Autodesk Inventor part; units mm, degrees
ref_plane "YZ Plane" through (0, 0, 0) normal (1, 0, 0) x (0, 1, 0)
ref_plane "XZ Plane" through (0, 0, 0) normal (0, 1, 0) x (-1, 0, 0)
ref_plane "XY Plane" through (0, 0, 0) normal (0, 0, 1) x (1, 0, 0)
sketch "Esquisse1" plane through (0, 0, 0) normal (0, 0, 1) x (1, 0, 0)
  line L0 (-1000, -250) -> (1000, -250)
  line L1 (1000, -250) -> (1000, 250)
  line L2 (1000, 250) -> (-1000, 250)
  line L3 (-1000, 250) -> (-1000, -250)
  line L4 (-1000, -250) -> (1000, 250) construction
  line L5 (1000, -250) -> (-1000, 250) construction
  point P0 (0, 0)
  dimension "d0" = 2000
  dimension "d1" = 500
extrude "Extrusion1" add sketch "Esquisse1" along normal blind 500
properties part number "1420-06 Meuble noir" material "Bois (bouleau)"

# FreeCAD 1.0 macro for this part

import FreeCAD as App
import Part
import Sketcher
Q = App.Units.Quantity

doc = App.newDocument("Part")
body = doc.addObject("PartDesign::Body", "Body")

# Sketch on XY plane
sketch1 = body.newObject("Sketcher::SketchObject", "Sketch")
sketch1.AttachmentSupport = (doc.getObject("XY_Plane"), [""])
sketch1.MapMode = "FlatFace"
sketch1.addGeometry(Part.LineSegment(App.Vector(-1000, 250, 0), App.Vector(-1000, -250, 0)), False)
sketch1.addGeometry(Part.LineSegment(App.Vector(-1000, -250, 0), App.Vector(1000, -250, 0)), False)
sketch1.addGeometry(Part.LineSegment(App.Vector(1000, -250, 0), App.Vector(1000, 250, 0)), False)
sketch1.addGeometry(Part.LineSegment(App.Vector(1000, 250, 0), App.Vector(-1000, 250, 0)), False)
sketch1.addConstraint(Sketcher.Constraint("Coincident", 0, 2, 1, 1))
sketch1.addConstraint(Sketcher.Constraint("Coincident", 1, 2, 2, 1))
sketch1.addConstraint(Sketcher.Constraint("Coincident", 2, 2, 3, 1))
sketch1.addConstraint(Sketcher.Constraint("Coincident", 3, 2, 0, 1))
sketch1.addConstraint(Sketcher.Constraint("Vertical", 0))
sketch1.addConstraint(Sketcher.Constraint("Horizontal", 1))
sketch1.addConstraint(Sketcher.Constraint("Vertical", 2))
sketch1.addConstraint(Sketcher.Constraint("Horizontal", 3))
sketch1.addConstraint(Sketcher.Constraint("Symmetric", 0, 2, 2, 2, -1, 1))
sketch1.addConstraint(Sketcher.Constraint("DistanceX", 1, 1, 1, 2, Q("2000 mm")))
sketch1.addConstraint(Sketcher.Constraint("DistanceY", 0, 2, 0, 1, Q("500 mm")))
pad1 = body.newObject("PartDesign::Pad", "Pad")
pad1.Profile = sketch1
pad1.Length = 500

doc.recompute()
